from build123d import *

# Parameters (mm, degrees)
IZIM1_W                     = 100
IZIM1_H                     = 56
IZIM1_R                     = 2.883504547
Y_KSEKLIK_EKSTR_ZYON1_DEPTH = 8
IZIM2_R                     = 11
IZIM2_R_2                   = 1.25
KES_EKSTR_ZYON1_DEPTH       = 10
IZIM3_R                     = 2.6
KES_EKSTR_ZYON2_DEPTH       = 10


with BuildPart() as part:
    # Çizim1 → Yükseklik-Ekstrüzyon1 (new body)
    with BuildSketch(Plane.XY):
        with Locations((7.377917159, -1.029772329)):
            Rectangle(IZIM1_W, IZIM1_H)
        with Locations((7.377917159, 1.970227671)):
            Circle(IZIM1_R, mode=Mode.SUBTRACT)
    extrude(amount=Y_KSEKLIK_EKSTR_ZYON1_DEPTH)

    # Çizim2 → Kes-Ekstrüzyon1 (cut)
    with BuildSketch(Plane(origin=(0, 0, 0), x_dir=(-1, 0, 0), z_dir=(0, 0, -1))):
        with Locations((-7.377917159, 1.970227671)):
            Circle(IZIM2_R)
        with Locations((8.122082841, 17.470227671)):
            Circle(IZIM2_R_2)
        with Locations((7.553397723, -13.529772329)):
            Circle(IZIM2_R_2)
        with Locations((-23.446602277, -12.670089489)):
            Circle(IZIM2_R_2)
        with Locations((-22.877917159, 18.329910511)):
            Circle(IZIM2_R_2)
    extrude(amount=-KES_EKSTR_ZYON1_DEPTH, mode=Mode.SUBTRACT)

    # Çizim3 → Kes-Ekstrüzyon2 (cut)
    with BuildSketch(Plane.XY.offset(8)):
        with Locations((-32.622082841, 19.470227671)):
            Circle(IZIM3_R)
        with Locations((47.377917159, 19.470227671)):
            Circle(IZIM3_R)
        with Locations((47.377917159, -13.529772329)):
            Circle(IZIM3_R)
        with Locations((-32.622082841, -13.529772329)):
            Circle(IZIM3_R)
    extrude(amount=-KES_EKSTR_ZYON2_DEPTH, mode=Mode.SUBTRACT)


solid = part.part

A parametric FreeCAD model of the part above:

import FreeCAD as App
import Part
import Sketcher

V = App.Vector
Q = App.Units.Quantity


def add_polygon(sketch, points):
    """Adds a closed chain of lines whose ends are joined by coincident constraints."""
    first, n = sketch.GeometryCount, len(points)
    for a, b in zip(points, points[1:] + points[:1]):
        sketch.addGeometry(Part.LineSegment(App.Vector(*a, 0), App.Vector(*b, 0)), False)
    for i in range(n):
        sketch.addConstraint(Sketcher.Constraint("Coincident", first + i, 2, first + (i + 1) % n, 1))

doc = App.newDocument("Part")
params = doc.addObject("Spreadsheet::Sheet", "Params")
for row, (alias, value) in enumerate([
    ("sketch1_width", "100 mm"),
    ("sketch1_height", "56 mm"),
    ("pad1_length", "8 mm"),
    ("sketch2_diameter", "22 mm"),
    ("sketch2_diameter2", "2.5 mm"),
    ("pocket1_length", "10 mm"),
    ("sketch3_diameter", "5.2 mm"),
    ("pocket2_length", "10 mm"),
], start=1):
    params.set(f"A{row}", alias)
    params.set(f"B{row}", "=" + value)
    params.setAlias(f"B{row}", alias)

body = doc.addObject("PartDesign::Body", "Body")

# Sketch on XY plane
sketch1 = body.newObject("Sketcher::SketchObject", "Sketch")
sketch1.AttachmentSupport = (doc.getObject("XY_Plane"), [""])
sketch1.MapMode = "FlatFace"
add_polygon(sketch1, [(-42.622083, 26.970228), (-42.622083, -29.029772), (57.377917, -29.029772), (57.377917, 26.970228)])  # lines 0-3
sketch1.addGeometry(Part.Circle(V(7.377917, 1.970228, 0), V(0, 0, 1), 2.883505), False)  # 4
sketch1.addConstraint(Sketcher.Constraint("Vertical", 0))
sketch1.addConstraint(Sketcher.Constraint("Horizontal", 1))
sketch1.addConstraint(Sketcher.Constraint("Vertical", 2))
sketch1.addConstraint(Sketcher.Constraint("Horizontal", 3))
sketch1.addConstraint(Sketcher.Constraint("DistanceX", 1, 1, 1, 2, Q("100 mm")))
sketch1.addConstraint(Sketcher.Constraint("DistanceY", 0, 2, 0, 1, Q("56 mm")))
sketch1.addConstraint(Sketcher.Constraint("DistanceX", 0, 2, 4, 3, Q("50 mm")))
sketch1.addConstraint(Sketcher.Constraint("DistanceY", 0, 2, 4, 3, Q("31 mm")))
sketch1.addConstraint(Sketcher.Constraint("Diameter", 4, Q("5.767009 mm")))
sketch1.addConstraint(Sketcher.Constraint("DistanceX", -1, 1, 4, 3, Q("7.377917 mm")))
sketch1.addConstraint(Sketcher.Constraint("DistanceY", -1, 1, 4, 3, Q("1.970228 mm")))
sketch1.setExpression("Constraints[8]", "Params.sketch1_width")
sketch1.setExpression("Constraints[9]", "Params.sketch1_height")
pad1 = body.newObject("PartDesign::Pad", "Pad")
pad1.Profile = sketch1
pad1.setExpression("Length", "Params.pad1_length")

# Sketch on XY plane
sketch2 = body.newObject("Sketcher::SketchObject", "Sketch001")
sketch2.AttachmentSupport = (doc.getObject("XY_Plane"), [""])
sketch2.MapMode = "FlatFace"
sketch2.addGeometry(Part.Circle(V(7.377917, 1.970228, 0), V(0, 0, 1), 11), False)
sketch2.addGeometry(Part.Circle(V(-8.122083, 17.470228, 0), V(0, 0, 1), 1.25), False)
sketch2.addGeometry(Part.Circle(V(-7.553398, -13.529772, 0), V(0, 0, 1), 1.25), False)
sketch2.addGeometry(Part.Circle(V(23.446602, -12.670089, 0), V(0, 0, 1), 1.25), False)
sketch2.addGeometry(Part.Circle(V(22.877917, 18.329911, 0), V(0, 0, 1), 1.25), False)
sketch2.addConstraint(Sketcher.Constraint("Equal", 1, 2))
sketch2.addConstraint(Sketcher.Constraint("Equal", 2, 3))
sketch2.addConstraint(Sketcher.Constraint("Equal", 3, 4))
sketch2.addConstraint(Sketcher.Constraint("Diameter", 0, Q("22 mm")))
sketch2.addConstraint(Sketcher.Constraint("Diameter", 1, Q("2.5 mm")))
sketch2.addConstraint(Sketcher.Constraint("DistanceY", 2, 3, 1, 3, Q("31 mm")))
sketch2.addConstraint(Sketcher.Constraint("DistanceX", 2, 3, 3, 3, Q("31 mm")))
sketch2.addConstraint(Sketcher.Constraint("DistanceY", 3, 3, 4, 3, Q("31 mm")))
sketch2.addConstraint(Sketcher.Constraint("DistanceX", 1, 3, 4, 3, Q("31 mm")))
sketch2.addConstraint(Sketcher.Constraint("DistanceX", 1, 3, 0, 3, Q("15.5 mm")))
sketch2.addConstraint(Sketcher.Constraint("DistanceY", 0, 3, 1, 3, Q("15.5 mm")))
sketch2.addConstraint(Sketcher.Constraint("DistanceY", 3, 3, -1, 1, Q("12.670089 mm")))
sketch2.addConstraint(Sketcher.Constraint("DistanceX", -1, 1, 0, 3, Q("7.377917 mm")))
sketch2.addConstraint(Sketcher.Constraint("DistanceY", -1, 1, 0, 3, Q("1.970228 mm")))
sketch2.addConstraint(Sketcher.Constraint("DistanceX", 2, 3, -1, 1, Q("7.553398 mm")))
sketch2.setExpression("Constraints[3]", "Params.sketch2_diameter")
sketch2.setExpression("Constraints[4]", "Params.sketch2_diameter2")
pocket1 = body.newObject("PartDesign::Pocket", "Pocket")
pocket1.Profile = sketch2
pocket1.setExpression("Length", "Params.pocket1_length")
pocket1.Reversed = True

# Sketch on XY plane
sketch3 = body.newObject("Sketcher::SketchObject", "Sketch002")
sketch3.AttachmentSupport = (doc.getObject("XY_Plane"), [""])
sketch3.MapMode = "FlatFace"
sketch3.AttachmentOffset = App.Placement(V(0, 0, 8), App.Rotation())
sketch3.addGeometry(Part.Circle(V(-32.622083, 19.470228, 0), V(0, 0, 1), 2.6), False)
sketch3.addGeometry(Part.Circle(V(47.377917, 19.470228, 0), V(0, 0, 1), 2.6), False)
sketch3.addGeometry(Part.Circle(V(47.377917, -13.529772, 0), V(0, 0, 1), 2.6), False)
sketch3.addGeometry(Part.Circle(V(-32.622083, -13.529772, 0), V(0, 0, 1), 2.6), False)
sketch3.addConstraint(Sketcher.Constraint("Equal", 0, 1))
sketch3.addConstraint(Sketcher.Constraint("Equal", 1, 2))
sketch3.addConstraint(Sketcher.Constraint("Equal", 2, 3))
sketch3.addConstraint(Sketcher.Constraint("Horizontal", 0, 3, 1, 3))
sketch3.addConstraint(Sketcher.Constraint("Horizontal", 2, 3, 3, 3))
sketch3.addConstraint(Sketcher.Constraint("Vertical", 1, 3, 2, 3))
sketch3.addConstraint(Sketcher.Constraint("Vertical", 0, 3, 3, 3))
sketch3.addConstraint(Sketcher.Constraint("Diameter", 0, Q("5.2 mm")))
sketch3.addConstraint(Sketcher.Constraint("DistanceX", 0, 3, 1, 3, Q("80 mm")))
sketch3.addConstraint(Sketcher.Constraint("DistanceY", 2, 3, 1, 3, Q("33 mm")))
sketch3.addConstraint(Sketcher.Constraint("DistanceX", 0, 3, -1, 1, Q("32.622083 mm")))
sketch3.addConstraint(Sketcher.Constraint("DistanceY", -1, 1, 0, 3, Q("19.470228 mm")))
sketch3.setExpression("Constraints[7]", "Params.sketch3_diameter")
pocket2 = body.newObject("PartDesign::Pocket", "Pocket001")
pocket2.Profile = sketch3
pocket2.setExpression("Length", "Params.pocket2_length")

doc.recompute()
